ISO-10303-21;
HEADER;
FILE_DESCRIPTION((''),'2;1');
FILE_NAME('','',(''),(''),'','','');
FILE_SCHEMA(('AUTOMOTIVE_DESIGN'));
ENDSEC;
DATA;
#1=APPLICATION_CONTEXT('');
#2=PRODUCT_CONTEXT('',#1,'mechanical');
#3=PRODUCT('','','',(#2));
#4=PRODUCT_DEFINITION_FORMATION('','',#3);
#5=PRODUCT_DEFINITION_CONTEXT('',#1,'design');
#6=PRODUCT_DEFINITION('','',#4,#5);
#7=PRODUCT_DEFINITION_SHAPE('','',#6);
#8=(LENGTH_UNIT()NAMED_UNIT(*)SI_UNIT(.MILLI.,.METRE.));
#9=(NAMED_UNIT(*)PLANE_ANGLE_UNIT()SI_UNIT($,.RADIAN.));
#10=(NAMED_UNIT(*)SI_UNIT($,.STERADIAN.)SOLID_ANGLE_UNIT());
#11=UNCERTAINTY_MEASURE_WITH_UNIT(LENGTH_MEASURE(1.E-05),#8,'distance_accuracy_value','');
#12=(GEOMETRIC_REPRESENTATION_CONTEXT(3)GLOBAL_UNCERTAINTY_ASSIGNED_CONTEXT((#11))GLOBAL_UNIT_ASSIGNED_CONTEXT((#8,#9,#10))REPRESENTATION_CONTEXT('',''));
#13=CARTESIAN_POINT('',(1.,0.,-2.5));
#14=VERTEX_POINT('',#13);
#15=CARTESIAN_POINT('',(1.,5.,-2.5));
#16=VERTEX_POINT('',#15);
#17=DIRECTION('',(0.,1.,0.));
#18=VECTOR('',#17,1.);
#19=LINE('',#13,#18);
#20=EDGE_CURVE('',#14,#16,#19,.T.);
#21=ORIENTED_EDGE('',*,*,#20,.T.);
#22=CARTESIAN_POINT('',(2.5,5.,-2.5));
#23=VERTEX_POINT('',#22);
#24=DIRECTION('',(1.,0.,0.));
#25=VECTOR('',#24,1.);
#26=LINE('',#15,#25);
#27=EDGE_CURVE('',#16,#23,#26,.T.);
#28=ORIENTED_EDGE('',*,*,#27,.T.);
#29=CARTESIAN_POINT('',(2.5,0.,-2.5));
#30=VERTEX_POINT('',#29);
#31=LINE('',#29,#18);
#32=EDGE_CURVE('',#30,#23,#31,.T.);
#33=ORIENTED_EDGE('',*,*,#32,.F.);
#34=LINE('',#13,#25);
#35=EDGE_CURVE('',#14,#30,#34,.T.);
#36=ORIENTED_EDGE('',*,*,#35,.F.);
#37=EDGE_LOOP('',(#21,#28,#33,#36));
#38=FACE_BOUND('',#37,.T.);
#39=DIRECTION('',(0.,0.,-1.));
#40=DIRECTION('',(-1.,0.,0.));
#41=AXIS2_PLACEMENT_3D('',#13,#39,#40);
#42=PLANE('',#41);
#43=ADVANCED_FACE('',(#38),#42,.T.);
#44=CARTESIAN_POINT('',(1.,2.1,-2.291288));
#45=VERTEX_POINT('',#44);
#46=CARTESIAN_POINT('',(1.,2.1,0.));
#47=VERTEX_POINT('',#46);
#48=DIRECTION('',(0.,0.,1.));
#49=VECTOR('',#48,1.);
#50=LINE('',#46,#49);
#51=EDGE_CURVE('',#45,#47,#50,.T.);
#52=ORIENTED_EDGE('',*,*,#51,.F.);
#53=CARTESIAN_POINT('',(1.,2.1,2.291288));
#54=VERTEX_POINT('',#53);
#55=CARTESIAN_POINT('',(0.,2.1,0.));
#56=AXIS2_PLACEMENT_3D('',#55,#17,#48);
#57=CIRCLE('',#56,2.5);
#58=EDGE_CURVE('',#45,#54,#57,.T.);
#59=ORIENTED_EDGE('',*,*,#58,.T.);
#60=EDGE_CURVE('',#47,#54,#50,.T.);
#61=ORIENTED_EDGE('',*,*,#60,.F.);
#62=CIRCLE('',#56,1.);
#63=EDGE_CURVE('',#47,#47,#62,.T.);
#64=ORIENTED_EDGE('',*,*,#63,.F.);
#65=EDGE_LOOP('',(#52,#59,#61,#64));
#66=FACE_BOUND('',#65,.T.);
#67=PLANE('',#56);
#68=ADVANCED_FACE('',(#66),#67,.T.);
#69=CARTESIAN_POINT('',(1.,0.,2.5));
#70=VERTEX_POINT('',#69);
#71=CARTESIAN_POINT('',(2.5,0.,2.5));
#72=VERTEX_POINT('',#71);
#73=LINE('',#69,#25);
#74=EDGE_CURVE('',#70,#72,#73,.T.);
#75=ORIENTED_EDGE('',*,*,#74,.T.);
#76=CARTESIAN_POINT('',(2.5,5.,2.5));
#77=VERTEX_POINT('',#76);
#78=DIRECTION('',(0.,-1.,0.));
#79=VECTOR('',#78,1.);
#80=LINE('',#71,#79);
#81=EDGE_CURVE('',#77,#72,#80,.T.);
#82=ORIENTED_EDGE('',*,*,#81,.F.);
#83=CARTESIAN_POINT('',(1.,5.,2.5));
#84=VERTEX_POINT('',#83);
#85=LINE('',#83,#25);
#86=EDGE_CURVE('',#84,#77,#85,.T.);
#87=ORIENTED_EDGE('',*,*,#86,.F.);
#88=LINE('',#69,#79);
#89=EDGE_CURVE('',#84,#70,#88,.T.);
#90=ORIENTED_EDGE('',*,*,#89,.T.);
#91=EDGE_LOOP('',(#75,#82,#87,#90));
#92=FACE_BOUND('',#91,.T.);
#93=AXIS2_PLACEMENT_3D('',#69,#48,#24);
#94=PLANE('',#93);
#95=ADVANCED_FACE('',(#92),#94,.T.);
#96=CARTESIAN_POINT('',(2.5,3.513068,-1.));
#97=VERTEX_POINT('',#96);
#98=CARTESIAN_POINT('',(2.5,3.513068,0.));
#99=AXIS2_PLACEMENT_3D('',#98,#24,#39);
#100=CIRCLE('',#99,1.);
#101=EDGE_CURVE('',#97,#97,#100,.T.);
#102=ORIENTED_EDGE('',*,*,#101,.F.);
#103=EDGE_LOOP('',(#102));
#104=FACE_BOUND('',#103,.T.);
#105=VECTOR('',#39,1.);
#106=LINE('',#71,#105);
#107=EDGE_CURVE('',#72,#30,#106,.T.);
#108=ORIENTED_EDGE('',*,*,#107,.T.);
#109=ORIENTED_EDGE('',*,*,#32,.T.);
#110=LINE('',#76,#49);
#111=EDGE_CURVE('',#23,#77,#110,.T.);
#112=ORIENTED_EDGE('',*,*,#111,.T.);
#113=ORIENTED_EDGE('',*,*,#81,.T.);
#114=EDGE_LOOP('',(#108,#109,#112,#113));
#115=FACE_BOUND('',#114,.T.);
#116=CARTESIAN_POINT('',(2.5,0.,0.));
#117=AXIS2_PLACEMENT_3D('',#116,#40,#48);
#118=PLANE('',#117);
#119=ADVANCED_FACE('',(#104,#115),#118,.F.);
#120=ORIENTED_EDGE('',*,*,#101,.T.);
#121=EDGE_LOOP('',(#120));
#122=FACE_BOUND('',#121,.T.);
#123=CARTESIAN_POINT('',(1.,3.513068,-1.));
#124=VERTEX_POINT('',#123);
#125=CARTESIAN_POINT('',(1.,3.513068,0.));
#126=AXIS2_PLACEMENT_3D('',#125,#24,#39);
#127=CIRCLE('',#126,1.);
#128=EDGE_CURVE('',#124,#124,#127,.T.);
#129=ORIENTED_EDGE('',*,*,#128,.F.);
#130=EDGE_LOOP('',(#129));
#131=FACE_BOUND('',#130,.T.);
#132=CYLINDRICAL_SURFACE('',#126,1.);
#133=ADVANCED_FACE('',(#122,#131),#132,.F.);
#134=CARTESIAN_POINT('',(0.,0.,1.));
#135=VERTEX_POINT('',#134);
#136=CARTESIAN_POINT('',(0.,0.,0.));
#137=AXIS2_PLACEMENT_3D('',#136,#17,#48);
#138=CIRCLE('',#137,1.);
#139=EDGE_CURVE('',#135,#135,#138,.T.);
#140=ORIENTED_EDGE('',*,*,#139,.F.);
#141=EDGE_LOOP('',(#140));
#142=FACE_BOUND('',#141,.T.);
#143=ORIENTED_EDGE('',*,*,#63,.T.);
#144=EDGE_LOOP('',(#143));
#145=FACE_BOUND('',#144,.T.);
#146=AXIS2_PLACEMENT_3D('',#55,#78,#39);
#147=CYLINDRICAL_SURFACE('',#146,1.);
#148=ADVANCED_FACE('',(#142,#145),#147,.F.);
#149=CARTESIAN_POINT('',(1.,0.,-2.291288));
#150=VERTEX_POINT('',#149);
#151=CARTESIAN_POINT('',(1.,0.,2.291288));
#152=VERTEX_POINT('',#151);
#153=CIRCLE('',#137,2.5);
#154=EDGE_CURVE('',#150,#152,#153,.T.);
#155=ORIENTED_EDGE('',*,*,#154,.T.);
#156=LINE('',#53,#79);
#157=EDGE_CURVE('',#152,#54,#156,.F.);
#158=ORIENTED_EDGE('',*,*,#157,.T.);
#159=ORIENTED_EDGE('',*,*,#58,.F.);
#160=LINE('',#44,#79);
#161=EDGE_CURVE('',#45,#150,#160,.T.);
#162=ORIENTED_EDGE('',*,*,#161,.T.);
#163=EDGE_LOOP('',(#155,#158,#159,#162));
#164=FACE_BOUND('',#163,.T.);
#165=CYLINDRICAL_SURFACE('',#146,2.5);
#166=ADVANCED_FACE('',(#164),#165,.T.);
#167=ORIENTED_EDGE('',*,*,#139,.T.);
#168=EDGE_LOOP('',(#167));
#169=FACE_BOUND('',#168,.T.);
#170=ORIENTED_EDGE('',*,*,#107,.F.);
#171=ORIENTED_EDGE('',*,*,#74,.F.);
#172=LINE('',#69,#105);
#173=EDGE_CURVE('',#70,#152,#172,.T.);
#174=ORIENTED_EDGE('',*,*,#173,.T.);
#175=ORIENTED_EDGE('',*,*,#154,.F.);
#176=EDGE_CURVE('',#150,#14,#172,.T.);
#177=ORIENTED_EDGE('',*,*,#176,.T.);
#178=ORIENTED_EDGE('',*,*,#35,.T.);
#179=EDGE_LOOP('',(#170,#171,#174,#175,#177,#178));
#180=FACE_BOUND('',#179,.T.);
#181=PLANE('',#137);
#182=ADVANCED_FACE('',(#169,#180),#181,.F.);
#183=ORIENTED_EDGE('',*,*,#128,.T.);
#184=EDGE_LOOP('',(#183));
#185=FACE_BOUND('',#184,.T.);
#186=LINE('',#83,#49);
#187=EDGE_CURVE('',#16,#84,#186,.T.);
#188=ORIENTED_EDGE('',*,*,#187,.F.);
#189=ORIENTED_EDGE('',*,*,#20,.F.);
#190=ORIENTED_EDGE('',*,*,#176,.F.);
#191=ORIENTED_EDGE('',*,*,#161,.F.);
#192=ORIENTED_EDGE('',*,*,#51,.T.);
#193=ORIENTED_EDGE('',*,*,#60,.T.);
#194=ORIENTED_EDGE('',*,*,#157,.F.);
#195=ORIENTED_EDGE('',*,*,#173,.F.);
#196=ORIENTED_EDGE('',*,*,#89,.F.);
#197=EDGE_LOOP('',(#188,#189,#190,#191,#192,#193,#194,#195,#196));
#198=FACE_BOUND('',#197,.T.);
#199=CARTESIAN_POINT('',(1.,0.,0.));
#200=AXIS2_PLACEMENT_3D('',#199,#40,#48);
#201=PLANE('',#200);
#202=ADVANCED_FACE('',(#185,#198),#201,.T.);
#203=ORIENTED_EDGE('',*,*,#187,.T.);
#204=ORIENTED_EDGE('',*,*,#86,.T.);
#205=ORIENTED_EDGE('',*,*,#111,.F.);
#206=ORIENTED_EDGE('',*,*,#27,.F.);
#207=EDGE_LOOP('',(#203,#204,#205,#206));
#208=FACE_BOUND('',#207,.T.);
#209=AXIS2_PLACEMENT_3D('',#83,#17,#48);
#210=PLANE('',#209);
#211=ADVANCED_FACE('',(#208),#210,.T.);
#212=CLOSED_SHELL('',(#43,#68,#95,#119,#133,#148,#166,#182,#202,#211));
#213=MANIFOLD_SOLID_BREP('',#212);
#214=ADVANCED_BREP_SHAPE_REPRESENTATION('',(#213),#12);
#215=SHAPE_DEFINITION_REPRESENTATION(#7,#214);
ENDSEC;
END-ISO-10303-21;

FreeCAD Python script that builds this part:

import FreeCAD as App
import Part
import Sketcher

V = App.Vector


def add_polygon(sketch, points):
    """Adds a closed chain of lines whose ends are joined by coincident constraints."""
    first, n = sketch.GeometryCount, len(points)
    for a, b in zip(points, points[1:] + points[:1]):
        sketch.addGeometry(Part.LineSegment(App.Vector(*a, 0), App.Vector(*b, 0)), False)
    for i in range(n):
        sketch.addConstraint(Sketcher.Constraint("Coincident", first + i, 2, first + (i + 1) % n, 1))

doc = App.newDocument("Part")
body = doc.addObject("PartDesign::Body", "Body")

sketch1 = body.newObject("Sketcher::SketchObject", "Sketch")
sketch1.AttachmentSupport = (doc.getObject("XZ_Plane"), [""])
sketch1.MapMode = "FlatFace"
sketch1.addGeometry(Part.Circle(V(0, 0, 0), V(0, 0, 1), 2.5), False)
sketch1.addGeometry(Part.Circle(V(0, 0, 0), V(0, 0, 1), 1), False)
sketch1.addConstraint(Sketcher.Constraint("Coincident", 0, 3, -1, 1))
sketch1.addConstraint(Sketcher.Constraint("Coincident", 1, 3, -1, 1))
sketch1.addConstraint(Sketcher.Constraint("Diameter", 0, 5.0))
sketch1.addConstraint(Sketcher.Constraint("Diameter", 1, 2.0))
pad1 = body.newObject("PartDesign::Pad", "Pad")
pad1.Profile = sketch1
pad1.Length = 2.1
pad1.Reversed = True

sketch2 = body.newObject("Sketcher::SketchObject", "Sketch001")
sketch2.AttachmentSupport = (doc.getObject("YZ_Plane"), [""])
sketch2.MapMode = "FlatFace"
sketch2.AttachmentOffset = App.Placement(V(0, 0, 2.5), App.Rotation())
add_polygon(sketch2, [(5, 2.5), (0, 2.5), (0, -2.5), (5, -2.5)])
sketch2.addGeometry(Part.Circle(V(3.5, 0, 0), V(0, 0, 1), 1), False)
sketch2.addConstraint(Sketcher.Constraint("Horizontal", 0))
sketch2.addConstraint(Sketcher.Constraint("Vertical", 1))
sketch2.addConstraint(Sketcher.Constraint("Horizontal", 2))
sketch2.addConstraint(Sketcher.Constraint("Vertical", 3))
sketch2.addConstraint(Sketcher.Constraint("Symmetric", 0, 2, 1, 2, -1, 1))
sketch2.addConstraint(Sketcher.Constraint("PointOnObject", 4, 3, -1))
sketch2.addConstraint(Sketcher.Constraint("Equal", 2, 1))
sketch2.addConstraint(Sketcher.Constraint("Diameter", 4, 2.0))
sketch2.addConstraint(Sketcher.Constraint("DistanceX", 0, 2, 0, 1, 5.0))
sketch2.addConstraint(Sketcher.Constraint("DistanceX", -1, 1, 4, 3, 3.513068))
pad2 = body.newObject("PartDesign::Pad", "Pad001")
pad2.Profile = sketch2
pad2.Length = 1.5
pad2.Reversed = True

doc.recompute()
